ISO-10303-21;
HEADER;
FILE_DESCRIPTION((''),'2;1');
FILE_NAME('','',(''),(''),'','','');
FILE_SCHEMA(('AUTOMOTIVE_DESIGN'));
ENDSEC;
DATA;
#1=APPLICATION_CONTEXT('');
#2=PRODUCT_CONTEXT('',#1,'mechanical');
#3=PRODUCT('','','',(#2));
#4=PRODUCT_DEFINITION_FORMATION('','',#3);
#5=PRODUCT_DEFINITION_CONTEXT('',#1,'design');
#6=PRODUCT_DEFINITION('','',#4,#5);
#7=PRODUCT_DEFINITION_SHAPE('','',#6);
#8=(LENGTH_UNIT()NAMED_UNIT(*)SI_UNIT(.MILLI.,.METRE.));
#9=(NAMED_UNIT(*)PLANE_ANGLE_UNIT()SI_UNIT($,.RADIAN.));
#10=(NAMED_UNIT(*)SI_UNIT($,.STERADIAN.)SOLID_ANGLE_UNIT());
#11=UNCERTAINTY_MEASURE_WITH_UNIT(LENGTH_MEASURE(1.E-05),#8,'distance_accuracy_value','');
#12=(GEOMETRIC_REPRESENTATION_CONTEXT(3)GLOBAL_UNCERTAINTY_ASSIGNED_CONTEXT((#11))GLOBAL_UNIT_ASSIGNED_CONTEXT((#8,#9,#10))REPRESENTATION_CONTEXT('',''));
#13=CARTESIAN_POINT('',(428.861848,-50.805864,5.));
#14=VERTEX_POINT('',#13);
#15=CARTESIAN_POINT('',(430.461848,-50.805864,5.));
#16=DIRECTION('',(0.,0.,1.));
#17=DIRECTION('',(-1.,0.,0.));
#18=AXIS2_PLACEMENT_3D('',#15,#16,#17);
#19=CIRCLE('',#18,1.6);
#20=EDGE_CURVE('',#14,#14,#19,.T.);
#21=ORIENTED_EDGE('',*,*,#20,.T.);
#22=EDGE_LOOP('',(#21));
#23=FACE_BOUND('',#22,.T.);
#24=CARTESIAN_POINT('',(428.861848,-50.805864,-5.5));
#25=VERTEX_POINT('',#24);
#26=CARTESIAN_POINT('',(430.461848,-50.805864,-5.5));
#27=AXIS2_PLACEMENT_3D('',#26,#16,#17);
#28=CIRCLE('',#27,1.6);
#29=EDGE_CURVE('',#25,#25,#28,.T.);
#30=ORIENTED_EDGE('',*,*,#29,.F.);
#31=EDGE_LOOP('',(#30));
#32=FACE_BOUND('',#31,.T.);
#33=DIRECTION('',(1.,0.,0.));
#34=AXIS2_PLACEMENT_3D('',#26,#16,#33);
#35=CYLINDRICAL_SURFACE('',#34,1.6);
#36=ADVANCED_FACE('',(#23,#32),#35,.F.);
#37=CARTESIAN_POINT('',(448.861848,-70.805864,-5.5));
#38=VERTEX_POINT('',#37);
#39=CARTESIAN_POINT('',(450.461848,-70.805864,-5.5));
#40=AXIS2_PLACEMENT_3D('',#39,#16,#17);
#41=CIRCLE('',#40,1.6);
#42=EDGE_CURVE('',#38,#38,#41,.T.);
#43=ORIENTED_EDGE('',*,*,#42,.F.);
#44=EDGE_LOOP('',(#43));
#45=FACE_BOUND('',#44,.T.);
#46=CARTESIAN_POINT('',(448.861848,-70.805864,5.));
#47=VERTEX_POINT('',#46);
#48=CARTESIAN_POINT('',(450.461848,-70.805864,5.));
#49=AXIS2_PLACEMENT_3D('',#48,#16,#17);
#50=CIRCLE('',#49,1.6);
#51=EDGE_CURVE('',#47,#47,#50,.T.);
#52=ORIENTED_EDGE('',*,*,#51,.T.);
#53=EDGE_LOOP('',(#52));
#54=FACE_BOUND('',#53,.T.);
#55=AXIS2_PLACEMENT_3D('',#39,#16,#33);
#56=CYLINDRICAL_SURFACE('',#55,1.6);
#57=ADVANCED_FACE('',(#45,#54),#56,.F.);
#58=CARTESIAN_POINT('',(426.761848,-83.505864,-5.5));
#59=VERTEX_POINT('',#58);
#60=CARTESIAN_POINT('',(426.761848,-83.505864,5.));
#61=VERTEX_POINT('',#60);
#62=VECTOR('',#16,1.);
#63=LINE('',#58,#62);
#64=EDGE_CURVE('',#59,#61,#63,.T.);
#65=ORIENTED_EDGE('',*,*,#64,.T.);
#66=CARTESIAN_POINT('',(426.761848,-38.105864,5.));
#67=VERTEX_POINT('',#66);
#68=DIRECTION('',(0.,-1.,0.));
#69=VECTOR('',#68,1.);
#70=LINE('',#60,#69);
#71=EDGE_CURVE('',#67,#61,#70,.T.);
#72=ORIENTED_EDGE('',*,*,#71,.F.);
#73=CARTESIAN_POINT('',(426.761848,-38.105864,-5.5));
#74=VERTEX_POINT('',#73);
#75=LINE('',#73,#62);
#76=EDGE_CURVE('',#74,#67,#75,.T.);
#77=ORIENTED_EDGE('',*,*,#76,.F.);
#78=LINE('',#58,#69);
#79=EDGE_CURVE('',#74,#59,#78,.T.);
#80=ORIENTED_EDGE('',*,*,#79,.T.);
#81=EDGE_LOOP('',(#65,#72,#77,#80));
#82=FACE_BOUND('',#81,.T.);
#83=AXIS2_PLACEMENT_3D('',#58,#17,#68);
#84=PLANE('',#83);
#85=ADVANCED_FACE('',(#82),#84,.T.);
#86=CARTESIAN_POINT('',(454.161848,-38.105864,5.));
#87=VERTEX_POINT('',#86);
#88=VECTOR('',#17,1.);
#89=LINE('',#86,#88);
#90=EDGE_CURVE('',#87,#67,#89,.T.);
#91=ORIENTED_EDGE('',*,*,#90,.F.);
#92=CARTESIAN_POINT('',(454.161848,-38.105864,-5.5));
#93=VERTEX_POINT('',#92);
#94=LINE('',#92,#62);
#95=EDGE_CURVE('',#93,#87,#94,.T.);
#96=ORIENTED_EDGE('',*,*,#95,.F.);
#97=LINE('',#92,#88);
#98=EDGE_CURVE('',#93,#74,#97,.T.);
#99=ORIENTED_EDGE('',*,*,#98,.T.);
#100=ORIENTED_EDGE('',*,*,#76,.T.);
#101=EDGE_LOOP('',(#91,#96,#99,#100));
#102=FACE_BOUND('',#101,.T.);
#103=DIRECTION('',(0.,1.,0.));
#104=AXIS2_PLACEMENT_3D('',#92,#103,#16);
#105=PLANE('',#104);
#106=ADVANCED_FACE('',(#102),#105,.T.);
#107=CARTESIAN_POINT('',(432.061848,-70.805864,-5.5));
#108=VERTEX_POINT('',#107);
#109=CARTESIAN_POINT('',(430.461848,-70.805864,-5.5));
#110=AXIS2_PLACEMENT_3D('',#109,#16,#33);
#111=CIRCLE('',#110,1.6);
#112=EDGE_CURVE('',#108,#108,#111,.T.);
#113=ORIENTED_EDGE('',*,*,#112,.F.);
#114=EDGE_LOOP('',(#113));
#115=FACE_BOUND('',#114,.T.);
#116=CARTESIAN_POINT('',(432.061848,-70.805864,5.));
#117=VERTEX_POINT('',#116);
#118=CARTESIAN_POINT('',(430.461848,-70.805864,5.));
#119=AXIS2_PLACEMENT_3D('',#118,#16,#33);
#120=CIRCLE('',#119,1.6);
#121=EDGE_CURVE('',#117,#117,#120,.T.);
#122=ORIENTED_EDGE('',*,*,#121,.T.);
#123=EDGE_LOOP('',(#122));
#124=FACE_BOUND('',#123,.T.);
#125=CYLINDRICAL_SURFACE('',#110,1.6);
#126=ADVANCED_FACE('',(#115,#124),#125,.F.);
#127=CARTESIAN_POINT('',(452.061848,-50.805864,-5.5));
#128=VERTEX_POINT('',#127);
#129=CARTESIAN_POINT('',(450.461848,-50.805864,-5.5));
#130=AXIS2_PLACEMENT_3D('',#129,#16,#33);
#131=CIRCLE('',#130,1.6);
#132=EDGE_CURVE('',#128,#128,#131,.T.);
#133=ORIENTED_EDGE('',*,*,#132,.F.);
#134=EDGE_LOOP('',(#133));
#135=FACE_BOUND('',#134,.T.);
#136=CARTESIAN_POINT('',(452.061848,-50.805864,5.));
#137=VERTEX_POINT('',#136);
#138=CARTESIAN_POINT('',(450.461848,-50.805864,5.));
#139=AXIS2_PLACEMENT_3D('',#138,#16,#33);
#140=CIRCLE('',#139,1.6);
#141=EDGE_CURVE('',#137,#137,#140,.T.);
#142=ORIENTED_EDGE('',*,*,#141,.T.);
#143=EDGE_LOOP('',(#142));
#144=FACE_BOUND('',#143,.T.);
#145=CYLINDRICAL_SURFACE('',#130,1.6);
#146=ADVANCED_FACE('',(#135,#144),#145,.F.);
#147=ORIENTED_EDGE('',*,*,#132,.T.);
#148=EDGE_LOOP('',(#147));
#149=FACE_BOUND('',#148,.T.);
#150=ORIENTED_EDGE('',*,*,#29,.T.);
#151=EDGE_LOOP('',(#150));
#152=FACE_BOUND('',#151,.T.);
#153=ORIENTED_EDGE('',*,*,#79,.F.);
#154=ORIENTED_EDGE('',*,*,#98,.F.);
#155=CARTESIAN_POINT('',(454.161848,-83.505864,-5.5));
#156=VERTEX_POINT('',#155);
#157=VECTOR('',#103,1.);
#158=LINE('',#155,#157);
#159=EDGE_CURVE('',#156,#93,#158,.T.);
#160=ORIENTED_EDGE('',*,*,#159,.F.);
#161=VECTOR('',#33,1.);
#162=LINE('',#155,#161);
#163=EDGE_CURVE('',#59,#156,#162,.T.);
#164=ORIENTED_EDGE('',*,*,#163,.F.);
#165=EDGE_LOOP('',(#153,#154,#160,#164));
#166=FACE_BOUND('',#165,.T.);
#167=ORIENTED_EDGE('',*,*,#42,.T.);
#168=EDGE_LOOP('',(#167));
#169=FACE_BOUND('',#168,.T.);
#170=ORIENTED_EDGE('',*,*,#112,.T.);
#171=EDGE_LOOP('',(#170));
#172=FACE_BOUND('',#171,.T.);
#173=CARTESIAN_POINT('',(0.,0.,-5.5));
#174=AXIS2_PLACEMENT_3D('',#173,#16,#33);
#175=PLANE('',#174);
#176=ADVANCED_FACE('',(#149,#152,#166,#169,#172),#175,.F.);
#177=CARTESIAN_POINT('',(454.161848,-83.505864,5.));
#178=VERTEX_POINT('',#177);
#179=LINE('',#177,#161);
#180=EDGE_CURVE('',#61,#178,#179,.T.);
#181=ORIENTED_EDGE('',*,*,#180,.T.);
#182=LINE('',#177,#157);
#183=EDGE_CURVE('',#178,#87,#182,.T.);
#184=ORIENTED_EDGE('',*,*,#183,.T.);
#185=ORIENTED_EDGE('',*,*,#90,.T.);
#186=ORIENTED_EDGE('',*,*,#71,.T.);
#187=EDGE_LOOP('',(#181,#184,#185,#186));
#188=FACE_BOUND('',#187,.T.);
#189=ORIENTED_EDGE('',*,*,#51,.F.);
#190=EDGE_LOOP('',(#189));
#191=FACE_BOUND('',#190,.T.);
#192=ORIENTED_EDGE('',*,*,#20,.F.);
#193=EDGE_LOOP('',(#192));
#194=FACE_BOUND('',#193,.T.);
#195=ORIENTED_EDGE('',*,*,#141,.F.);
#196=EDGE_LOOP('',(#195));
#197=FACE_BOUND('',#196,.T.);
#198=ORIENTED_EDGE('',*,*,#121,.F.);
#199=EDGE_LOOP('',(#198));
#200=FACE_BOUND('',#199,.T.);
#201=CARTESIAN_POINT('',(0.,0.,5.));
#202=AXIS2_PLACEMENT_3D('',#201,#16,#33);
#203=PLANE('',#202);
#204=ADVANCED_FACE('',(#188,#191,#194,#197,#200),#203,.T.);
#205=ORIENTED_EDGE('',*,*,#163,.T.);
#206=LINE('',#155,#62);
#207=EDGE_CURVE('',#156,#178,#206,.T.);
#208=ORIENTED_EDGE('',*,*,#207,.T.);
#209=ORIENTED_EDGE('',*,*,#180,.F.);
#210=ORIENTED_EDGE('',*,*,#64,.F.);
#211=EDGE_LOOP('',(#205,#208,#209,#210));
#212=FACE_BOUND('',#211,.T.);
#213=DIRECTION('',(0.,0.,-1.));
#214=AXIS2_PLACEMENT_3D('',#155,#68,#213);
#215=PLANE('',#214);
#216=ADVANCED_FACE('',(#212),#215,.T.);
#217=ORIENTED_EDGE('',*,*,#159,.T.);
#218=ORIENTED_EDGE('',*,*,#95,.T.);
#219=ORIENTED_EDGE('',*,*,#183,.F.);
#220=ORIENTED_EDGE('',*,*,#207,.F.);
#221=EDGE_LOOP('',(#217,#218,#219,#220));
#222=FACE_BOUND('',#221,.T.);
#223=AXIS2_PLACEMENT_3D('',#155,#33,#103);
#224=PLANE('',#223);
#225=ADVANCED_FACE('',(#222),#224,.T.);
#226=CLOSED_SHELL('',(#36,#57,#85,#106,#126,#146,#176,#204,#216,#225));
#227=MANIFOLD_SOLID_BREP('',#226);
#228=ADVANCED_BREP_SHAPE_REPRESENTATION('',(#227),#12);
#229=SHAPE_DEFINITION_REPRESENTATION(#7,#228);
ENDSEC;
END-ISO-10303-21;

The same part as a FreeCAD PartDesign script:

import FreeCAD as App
import Part
import Sketcher


def add_polygon(sketch, points):
    """Adds a closed chain of lines whose ends are joined by coincident constraints."""
    first, n = sketch.GeometryCount, len(points)
    for a, b in zip(points, points[1:] + points[:1]):
        sketch.addGeometry(Part.LineSegment(App.Vector(*a, 0), App.Vector(*b, 0)), False)
    for i in range(n):
        sketch.addConstraint(Sketcher.Constraint("Coincident", first + i, 2, first + (i + 1) % n, 1))

doc = App.newDocument("Part")
body = doc.addObject("PartDesign::Body", "Body")

sketch1 = body.newObject("Sketcher::SketchObject", "Sketch")
sketch1.AttachmentSupport = (doc.getObject("XY_Plane"), [""])
sketch1.MapMode = "FlatFace"
add_polygon(sketch1, [(426.8, -38.1), (426.8, -83.5), (454.2, -83.5), (454.2, -38.1)])
sketch1.addGeometry(Part.Circle(App.Vector(430.5, -70.8, 0), App.Vector(0, 0, 1), 1.6), False)
sketch1.addGeometry(Part.Circle(App.Vector(450.5, -70.8, 0), App.Vector(0, 0, 1), 1.6), False)
sketch1.addGeometry(Part.Circle(App.Vector(430.5, -50.8, 0), App.Vector(0, 0, 1), 1.6), False)
sketch1.addGeometry(Part.Circle(App.Vector(450.5, -50.8, 0), App.Vector(0, 0, 1), 1.6), False)
sketch1.addConstraint(Sketcher.Constraint("Vertical", 0))
sketch1.addConstraint(Sketcher.Constraint("Horizontal", 1))
sketch1.addConstraint(Sketcher.Constraint("Vertical", 2))
sketch1.addConstraint(Sketcher.Constraint("Horizontal", 3))
sketch1.addConstraint(Sketcher.Constraint("Equal", 4, 5))
sketch1.addConstraint(Sketcher.Constraint("Equal", 5, 6))
sketch1.addConstraint(Sketcher.Constraint("Equal", 6, 7))
sketch1.addConstraint(Sketcher.Constraint("Horizontal", 4, 3, 5, 3))
sketch1.addConstraint(Sketcher.Constraint("Horizontal", 6, 3, 7, 3))
sketch1.addConstraint(Sketcher.Constraint("Vertical", 4, 3, 6, 3))
sketch1.addConstraint(Sketcher.Constraint("Vertical", 5, 3, 7, 3))
sketch1.addConstraint(Sketcher.Constraint("Diameter", 4, 3.2))
sketch1.addConstraint(Sketcher.Constraint("DistanceX", 1, 1, 1, 2, 27.4))
sketch1.addConstraint(Sketcher.Constraint("DistanceY", 0, 2, 0, 1, 45.4))
sketch1.addConstraint(Sketcher.Constraint("DistanceX", 4, 3, 5, 3, 20.0))
sketch1.addConstraint(Sketcher.Constraint("DistanceY", 4, 3, 6, 3, 20.0))
sketch1.addConstraint(Sketcher.Constraint("DistanceX", 0, 2, 4, 3, 3.7))
sketch1.addConstraint(Sketcher.Constraint("DistanceY", 0, 2, 4, 3, 12.7))
sketch1.addConstraint(Sketcher.Constraint("DistanceX", -1, 1, 4, 3, 430.461848))
sketch1.addConstraint(Sketcher.Constraint("DistanceY", 4, 3, -1, 1, 70.805864))
pad1 = body.newObject("PartDesign::Pad", "Pad")
pad1.Profile = sketch1
pad1.Type = "TwoLengths"
pad1.Length = 5
pad1.Length2 = 5.5

doc.recompute()
